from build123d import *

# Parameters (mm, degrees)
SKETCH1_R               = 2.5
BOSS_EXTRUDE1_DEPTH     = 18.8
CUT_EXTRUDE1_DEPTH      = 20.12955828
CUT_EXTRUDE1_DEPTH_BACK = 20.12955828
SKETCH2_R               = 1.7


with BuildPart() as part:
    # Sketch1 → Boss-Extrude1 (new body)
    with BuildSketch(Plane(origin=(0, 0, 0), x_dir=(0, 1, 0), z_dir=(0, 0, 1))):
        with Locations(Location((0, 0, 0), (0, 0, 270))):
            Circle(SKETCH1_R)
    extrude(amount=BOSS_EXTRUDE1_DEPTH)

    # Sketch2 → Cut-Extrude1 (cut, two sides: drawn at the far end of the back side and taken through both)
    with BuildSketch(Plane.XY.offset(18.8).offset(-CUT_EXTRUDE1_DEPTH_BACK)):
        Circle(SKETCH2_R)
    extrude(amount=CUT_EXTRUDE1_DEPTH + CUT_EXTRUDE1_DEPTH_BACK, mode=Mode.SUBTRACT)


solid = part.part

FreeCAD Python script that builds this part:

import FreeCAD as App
import Part
import Sketcher

V = App.Vector
Q = App.Units.Quantity

doc = App.newDocument("Part")
params = doc.addObject("Spreadsheet::Sheet", "Params")
for row, (alias, value) in enumerate([
    ("sketch1_diameter", "5 mm"),
    ("pad1_length", "18.8 mm"),
    ("sketch2_diameter", "3.4 mm"),
], start=1):
    params.set(f"A{row}", alias)
    params.set(f"B{row}", "=" + value)
    params.setAlias(f"B{row}", alias)

body = doc.addObject("PartDesign::Body", "Body")

sketch1 = doc.addObject("Sketcher::SketchObject", "Sketch")
body.addObject(sketch1)
sketch1.AttachmentSupport = (doc.XY_Plane, [""])
sketch1.MapMode = "FlatFace"
sketch1.addGeometry(Part.Circle(V(0, 0, 0), V(0, 0, 1), 2.5), False)
sketch1.addConstraint([
    Sketcher.Constraint("Coincident", 0, 3, -1, 1),
    Sketcher.Constraint("Diameter", 0, Q("5 mm")),
])
sketch1.setExpression("Constraints[1]", "Params.sketch1_diameter")
pad1 = doc.addObject("PartDesign::Pad", "Pad")
body.addObject(pad1)
pad1.Profile = sketch1
pad1.setExpression("Length", "Params.pad1_length")

sketch2 = doc.addObject("Sketcher::SketchObject", "Sketch001")
body.addObject(sketch2)
sketch2.AttachmentSupport = (doc.XY_Plane, [""])
sketch2.MapMode = "FlatFace"
sketch2.AttachmentOffset = App.Placement(V(0, 0, 18.8), App.Rotation())
sketch2.addGeometry(Part.Circle(V(0, 0, 0), V(0, 0, 1), 1.7), False)
sketch2.addConstraint([
    Sketcher.Constraint("Coincident", 0, 3, -1, 1),
    Sketcher.Constraint("Diameter", 0, Q("3.4 mm")),
])
sketch2.setExpression("Constraints[1]", "Params.sketch2_diameter")
pocket1 = doc.addObject("PartDesign::Pocket", "Pocket")
body.addObject(pocket1)
pocket1.Profile = sketch2
pocket1.Type = "ThroughAll"
pocket1.Midplane = True

doc.recompute()
